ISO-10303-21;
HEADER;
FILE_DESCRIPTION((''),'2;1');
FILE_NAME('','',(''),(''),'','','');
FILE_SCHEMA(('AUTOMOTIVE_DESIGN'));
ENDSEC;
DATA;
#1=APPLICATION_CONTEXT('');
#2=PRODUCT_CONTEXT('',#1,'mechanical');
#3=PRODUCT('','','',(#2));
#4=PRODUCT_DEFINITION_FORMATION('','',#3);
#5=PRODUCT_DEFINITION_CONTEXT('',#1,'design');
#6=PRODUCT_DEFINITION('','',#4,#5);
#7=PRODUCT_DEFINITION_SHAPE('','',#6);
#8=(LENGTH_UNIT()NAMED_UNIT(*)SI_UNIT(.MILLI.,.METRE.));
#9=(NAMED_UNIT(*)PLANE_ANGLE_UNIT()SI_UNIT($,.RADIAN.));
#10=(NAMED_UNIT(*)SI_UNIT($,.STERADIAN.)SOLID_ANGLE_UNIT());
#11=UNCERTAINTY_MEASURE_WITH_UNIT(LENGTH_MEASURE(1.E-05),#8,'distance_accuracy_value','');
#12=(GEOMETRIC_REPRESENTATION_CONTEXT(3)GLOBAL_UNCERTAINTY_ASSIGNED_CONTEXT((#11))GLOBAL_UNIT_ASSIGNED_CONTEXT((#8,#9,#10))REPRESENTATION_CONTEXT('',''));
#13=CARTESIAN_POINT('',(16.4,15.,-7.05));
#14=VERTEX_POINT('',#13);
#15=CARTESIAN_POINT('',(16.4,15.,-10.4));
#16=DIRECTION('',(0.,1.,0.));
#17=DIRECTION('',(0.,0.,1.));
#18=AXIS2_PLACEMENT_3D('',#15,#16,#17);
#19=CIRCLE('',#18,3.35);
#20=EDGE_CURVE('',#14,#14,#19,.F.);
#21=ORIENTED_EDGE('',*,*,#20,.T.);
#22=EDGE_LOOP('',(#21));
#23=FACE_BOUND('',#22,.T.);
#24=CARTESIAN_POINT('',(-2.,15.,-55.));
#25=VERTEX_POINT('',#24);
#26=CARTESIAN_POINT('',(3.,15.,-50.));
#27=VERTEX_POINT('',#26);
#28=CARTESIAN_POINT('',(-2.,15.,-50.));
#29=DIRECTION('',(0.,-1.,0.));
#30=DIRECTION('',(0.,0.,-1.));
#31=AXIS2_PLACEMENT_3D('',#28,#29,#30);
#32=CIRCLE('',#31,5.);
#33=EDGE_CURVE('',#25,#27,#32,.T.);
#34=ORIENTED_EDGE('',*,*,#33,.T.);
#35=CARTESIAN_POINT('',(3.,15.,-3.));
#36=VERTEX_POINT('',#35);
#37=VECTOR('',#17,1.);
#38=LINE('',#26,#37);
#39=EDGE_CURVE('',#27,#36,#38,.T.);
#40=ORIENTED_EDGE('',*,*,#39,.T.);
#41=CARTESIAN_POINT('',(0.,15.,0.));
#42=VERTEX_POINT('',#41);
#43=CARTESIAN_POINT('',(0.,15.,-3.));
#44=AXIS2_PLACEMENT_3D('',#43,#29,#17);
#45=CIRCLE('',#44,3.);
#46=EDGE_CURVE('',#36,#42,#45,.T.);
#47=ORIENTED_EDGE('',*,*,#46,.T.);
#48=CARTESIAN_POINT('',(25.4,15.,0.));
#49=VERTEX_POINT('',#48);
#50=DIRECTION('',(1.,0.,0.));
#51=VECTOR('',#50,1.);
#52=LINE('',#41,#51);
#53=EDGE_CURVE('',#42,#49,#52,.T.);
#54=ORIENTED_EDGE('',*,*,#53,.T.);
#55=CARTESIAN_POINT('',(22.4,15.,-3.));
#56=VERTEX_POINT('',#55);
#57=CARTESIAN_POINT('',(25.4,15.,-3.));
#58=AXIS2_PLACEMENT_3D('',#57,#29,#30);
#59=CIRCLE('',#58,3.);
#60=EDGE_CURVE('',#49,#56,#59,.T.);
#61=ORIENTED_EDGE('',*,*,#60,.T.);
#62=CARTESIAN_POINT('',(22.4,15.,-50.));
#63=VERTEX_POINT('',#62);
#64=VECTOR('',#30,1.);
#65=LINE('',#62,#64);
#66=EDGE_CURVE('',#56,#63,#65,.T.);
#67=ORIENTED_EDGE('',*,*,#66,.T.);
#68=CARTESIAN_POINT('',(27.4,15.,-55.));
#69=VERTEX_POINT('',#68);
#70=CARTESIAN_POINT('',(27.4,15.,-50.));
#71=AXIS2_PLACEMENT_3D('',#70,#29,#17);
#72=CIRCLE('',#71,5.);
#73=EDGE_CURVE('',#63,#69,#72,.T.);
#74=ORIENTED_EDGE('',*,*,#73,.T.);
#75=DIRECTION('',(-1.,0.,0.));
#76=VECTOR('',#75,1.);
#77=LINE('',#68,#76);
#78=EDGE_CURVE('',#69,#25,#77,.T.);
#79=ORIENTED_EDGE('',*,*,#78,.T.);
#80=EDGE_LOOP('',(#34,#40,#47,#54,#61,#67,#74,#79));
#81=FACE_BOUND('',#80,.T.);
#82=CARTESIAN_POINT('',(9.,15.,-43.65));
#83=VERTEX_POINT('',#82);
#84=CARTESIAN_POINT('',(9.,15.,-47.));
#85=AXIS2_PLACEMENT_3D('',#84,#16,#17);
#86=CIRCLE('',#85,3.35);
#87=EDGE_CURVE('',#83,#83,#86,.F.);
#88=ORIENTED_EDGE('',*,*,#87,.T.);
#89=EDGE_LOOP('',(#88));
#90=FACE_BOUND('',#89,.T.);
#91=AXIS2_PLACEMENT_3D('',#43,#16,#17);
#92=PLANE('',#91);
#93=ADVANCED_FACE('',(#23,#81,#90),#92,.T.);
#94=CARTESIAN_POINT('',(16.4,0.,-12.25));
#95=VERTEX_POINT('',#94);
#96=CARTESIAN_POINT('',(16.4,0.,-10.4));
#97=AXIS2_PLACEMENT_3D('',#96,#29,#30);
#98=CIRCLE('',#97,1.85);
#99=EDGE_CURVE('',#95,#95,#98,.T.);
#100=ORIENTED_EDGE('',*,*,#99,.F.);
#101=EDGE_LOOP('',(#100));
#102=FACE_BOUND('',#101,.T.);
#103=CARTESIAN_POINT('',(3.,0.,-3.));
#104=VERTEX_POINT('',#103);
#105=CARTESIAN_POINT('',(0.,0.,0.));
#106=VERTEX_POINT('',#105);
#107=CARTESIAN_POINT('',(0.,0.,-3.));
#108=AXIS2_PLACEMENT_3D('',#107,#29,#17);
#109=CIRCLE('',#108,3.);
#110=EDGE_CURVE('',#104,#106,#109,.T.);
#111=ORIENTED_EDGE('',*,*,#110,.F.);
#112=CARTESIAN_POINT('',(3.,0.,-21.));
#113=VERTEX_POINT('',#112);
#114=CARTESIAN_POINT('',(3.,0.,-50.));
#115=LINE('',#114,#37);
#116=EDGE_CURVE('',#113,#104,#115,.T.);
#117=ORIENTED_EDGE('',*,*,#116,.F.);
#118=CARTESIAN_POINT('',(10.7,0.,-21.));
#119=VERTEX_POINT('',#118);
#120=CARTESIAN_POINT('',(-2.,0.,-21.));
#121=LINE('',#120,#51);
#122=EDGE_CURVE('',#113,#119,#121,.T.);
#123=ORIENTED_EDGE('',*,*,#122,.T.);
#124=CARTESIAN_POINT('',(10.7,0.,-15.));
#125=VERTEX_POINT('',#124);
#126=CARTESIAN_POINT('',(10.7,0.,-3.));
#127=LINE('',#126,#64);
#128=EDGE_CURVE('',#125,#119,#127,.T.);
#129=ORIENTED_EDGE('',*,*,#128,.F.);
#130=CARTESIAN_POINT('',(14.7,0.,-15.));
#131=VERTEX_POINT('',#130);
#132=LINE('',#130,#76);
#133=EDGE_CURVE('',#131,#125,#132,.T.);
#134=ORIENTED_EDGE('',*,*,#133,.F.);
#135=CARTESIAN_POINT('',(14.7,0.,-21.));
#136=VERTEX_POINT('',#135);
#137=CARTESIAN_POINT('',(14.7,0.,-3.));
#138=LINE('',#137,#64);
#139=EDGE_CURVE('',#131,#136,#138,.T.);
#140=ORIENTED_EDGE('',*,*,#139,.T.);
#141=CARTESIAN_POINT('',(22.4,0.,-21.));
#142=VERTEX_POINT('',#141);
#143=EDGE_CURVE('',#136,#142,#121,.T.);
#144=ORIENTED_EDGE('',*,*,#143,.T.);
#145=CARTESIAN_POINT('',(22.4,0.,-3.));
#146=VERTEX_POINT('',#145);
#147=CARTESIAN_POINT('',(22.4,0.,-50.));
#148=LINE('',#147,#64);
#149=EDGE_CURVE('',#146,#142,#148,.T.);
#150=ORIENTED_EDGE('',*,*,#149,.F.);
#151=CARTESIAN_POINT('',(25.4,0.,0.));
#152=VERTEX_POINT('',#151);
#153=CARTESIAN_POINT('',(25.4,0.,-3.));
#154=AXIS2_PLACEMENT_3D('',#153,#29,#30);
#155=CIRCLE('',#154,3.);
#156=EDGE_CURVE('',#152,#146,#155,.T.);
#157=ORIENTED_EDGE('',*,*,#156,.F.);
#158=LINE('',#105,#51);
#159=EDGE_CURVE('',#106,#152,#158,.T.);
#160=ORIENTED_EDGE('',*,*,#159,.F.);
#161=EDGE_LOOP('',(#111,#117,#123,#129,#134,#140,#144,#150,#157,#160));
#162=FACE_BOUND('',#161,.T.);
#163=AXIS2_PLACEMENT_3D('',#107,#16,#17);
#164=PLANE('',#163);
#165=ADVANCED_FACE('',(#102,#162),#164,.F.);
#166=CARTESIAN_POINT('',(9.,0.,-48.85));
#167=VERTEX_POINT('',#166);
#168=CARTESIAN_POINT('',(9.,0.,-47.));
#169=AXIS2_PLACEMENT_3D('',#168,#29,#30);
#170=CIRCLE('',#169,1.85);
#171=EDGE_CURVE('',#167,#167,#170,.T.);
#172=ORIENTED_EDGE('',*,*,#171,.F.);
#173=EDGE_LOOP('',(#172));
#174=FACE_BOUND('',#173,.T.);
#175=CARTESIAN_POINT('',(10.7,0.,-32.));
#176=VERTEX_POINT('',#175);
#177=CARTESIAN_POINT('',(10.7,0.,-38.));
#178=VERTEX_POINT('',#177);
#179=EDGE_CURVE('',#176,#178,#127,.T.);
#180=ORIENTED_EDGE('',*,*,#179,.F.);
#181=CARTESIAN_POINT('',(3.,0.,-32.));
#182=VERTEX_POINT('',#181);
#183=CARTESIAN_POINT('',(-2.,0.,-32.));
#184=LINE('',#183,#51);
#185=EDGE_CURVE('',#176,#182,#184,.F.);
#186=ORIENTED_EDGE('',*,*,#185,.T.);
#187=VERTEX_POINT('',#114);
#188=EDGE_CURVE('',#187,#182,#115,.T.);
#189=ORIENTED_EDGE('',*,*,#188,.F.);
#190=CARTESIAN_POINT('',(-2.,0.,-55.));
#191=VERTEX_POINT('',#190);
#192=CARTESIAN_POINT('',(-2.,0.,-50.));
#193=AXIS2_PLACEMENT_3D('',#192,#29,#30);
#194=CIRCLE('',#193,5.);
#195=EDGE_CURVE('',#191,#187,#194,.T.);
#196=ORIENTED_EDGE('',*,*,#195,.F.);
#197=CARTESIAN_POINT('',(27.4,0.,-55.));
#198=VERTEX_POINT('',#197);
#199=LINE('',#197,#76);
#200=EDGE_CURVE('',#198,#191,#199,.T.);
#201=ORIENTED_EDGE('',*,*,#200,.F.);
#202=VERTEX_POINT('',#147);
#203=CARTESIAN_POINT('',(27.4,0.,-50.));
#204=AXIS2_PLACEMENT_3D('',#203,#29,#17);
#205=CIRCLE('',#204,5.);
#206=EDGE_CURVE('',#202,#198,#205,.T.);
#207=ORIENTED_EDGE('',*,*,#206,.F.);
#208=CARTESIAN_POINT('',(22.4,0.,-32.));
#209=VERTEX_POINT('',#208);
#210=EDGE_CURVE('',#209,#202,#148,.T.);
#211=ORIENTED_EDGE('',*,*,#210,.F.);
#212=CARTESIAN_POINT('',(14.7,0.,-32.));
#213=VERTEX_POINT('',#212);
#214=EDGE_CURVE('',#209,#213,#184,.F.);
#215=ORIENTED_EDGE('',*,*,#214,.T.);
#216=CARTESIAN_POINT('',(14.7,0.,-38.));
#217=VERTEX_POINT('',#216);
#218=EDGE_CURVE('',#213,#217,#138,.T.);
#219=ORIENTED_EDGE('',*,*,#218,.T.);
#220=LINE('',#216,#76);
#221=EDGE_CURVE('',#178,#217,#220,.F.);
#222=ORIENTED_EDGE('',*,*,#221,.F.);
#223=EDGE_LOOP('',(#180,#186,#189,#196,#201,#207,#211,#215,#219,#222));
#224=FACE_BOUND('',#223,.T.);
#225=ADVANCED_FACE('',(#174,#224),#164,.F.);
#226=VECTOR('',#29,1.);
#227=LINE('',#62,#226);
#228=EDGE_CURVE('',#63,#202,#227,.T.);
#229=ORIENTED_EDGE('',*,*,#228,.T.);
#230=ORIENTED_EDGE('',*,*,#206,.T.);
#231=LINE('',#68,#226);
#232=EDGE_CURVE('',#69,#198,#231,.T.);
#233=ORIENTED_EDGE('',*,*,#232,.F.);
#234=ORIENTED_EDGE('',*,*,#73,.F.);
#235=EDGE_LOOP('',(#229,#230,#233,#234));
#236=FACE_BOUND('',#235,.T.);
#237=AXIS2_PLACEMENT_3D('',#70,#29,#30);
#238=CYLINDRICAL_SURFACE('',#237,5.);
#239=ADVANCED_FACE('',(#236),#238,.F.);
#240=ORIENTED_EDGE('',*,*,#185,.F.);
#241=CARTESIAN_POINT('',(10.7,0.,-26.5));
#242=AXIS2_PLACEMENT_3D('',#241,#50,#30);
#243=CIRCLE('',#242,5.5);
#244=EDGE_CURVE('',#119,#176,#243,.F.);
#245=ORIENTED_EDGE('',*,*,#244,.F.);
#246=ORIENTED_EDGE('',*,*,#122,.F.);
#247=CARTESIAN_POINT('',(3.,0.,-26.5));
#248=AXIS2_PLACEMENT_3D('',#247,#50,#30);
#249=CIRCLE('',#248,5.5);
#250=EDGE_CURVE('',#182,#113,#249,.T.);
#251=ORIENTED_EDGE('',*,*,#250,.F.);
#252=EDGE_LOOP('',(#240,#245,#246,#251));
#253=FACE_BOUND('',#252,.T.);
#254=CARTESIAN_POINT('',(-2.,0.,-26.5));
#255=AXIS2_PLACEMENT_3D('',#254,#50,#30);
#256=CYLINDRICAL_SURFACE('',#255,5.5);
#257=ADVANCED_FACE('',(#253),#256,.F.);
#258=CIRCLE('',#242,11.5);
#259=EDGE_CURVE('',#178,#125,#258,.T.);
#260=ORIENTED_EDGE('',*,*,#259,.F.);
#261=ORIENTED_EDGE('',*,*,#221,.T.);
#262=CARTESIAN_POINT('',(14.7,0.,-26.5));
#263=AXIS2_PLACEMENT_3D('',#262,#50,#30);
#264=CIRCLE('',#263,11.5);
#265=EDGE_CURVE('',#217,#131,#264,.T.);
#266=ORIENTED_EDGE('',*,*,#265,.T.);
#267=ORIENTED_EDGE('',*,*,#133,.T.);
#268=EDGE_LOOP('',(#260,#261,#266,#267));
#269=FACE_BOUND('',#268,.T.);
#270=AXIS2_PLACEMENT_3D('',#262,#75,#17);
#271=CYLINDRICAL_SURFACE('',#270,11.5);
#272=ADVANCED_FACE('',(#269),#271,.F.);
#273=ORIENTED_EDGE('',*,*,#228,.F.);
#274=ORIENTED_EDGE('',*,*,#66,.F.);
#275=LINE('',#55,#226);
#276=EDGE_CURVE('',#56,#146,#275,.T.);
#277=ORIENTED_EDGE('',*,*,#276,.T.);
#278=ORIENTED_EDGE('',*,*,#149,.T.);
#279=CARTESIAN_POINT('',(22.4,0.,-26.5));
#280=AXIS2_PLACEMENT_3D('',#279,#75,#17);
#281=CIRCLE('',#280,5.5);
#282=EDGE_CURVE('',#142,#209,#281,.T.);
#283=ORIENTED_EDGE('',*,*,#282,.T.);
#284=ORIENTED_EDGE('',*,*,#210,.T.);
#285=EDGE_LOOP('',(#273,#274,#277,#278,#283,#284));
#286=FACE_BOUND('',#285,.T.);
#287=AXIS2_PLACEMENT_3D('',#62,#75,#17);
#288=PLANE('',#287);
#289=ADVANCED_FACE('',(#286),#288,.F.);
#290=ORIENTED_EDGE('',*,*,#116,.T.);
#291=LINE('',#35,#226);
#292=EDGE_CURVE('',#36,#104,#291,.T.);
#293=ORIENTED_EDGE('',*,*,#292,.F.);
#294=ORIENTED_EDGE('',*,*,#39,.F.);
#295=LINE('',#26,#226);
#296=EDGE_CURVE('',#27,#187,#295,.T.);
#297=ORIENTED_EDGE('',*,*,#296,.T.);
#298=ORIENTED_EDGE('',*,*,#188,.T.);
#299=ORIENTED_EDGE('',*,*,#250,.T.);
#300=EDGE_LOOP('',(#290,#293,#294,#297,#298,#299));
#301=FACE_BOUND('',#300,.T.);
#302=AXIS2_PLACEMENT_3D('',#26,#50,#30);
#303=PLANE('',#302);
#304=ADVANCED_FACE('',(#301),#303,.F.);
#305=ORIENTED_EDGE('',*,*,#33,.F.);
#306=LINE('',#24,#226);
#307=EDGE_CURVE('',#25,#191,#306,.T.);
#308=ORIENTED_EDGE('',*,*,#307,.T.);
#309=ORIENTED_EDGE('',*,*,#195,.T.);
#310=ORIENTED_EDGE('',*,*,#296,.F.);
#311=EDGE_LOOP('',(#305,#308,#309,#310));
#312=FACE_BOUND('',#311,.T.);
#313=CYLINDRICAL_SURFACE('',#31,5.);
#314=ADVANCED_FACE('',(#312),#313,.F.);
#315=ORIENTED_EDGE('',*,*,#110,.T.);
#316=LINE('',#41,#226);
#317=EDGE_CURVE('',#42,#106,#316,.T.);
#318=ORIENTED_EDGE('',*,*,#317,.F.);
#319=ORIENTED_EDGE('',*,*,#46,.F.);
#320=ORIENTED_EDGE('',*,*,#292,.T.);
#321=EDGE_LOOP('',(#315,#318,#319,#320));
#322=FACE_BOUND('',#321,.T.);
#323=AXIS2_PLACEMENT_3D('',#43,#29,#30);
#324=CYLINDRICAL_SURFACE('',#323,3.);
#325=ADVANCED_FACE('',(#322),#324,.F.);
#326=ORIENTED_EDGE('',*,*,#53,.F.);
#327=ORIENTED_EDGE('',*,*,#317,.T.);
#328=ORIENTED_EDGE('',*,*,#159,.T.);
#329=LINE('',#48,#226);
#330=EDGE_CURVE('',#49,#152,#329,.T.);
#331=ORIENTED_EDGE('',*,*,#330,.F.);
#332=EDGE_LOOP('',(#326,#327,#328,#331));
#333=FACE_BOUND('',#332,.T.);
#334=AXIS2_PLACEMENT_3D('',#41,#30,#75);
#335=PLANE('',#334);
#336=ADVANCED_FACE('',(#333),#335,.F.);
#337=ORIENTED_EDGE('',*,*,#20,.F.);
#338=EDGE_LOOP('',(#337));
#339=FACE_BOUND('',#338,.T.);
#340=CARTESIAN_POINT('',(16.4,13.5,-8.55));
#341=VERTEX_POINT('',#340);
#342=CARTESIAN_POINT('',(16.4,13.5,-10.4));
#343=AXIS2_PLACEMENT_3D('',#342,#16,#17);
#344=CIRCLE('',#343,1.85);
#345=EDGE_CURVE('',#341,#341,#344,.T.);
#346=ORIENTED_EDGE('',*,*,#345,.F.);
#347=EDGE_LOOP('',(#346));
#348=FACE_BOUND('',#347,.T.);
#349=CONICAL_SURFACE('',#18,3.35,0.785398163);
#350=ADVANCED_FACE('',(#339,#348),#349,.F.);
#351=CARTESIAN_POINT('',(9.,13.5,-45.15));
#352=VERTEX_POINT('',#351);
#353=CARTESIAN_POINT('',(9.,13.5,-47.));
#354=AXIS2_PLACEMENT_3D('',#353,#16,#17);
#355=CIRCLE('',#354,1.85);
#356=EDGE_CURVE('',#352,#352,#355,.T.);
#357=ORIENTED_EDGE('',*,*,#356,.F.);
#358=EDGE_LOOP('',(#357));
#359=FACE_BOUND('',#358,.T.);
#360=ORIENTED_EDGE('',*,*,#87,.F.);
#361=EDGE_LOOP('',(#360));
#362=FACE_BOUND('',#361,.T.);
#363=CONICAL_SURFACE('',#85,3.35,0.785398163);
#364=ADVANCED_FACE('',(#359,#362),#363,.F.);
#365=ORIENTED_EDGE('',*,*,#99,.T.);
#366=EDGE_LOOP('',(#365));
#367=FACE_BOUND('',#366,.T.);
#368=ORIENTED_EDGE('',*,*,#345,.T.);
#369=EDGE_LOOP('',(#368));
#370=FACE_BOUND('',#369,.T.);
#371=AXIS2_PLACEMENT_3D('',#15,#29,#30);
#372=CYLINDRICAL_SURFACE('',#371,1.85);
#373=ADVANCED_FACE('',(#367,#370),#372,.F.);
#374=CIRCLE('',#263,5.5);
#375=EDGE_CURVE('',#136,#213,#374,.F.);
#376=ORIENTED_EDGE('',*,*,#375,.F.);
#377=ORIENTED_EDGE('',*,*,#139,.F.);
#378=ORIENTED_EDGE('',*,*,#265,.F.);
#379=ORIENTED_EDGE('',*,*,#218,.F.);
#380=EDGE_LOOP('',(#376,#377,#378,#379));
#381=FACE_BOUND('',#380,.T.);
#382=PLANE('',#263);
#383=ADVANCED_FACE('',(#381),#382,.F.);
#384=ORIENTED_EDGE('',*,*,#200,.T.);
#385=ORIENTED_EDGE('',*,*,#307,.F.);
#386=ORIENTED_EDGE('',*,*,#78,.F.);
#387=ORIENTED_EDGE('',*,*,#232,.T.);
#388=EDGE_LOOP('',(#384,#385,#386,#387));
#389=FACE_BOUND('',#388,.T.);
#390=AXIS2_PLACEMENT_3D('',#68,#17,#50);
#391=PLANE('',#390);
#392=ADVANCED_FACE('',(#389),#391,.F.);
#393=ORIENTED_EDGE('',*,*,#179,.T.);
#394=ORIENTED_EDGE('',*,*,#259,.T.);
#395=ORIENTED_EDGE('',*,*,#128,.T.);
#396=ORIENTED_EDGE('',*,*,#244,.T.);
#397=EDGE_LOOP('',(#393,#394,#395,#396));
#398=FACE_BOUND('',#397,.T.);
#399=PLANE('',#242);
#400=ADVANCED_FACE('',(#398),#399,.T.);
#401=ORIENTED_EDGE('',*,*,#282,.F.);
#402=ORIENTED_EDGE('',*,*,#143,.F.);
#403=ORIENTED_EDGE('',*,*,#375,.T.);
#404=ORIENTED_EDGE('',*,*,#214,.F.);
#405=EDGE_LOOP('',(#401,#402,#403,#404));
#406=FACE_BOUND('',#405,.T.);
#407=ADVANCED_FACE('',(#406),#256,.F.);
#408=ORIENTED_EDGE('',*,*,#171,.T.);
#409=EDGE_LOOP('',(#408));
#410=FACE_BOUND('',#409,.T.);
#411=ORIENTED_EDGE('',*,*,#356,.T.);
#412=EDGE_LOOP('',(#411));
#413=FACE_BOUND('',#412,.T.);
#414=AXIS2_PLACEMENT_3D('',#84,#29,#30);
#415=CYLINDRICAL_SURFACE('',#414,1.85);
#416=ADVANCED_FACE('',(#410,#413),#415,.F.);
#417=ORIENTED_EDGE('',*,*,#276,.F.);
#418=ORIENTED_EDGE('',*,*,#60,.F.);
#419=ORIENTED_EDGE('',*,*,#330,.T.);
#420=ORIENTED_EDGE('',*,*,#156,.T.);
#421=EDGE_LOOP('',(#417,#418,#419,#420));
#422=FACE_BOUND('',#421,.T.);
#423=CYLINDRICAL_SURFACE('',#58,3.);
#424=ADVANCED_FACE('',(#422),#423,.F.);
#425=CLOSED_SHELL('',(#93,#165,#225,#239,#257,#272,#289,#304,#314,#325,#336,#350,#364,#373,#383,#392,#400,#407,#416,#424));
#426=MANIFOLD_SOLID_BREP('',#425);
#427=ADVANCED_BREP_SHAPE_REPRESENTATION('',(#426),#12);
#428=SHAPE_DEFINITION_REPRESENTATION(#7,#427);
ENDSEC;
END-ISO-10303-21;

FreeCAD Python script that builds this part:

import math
import FreeCAD as App
import Part
import Sketcher
Q = App.Units.Quantity


def edges_at(feature, points):
    """Names of the edges that pass closest to the given points."""
    edges = feature.Shape.Edges
    near = lambda p: min(range(len(edges)), key=lambda i: edges[i].distToShape(Part.Vertex(*p))[0])
    return sorted({f"Edge{near(p) + 1}" for p in points})

doc = App.newDocument("Part")
body = doc.addObject("PartDesign::Body", "Body")

sketch1 = body.newObject("Sketcher::SketchObject", "Sketch")
sketch1.AttachmentSupport = (doc.getObject("XZ_Plane"), [""])
sketch1.MapMode = "FlatFace"
sketch1.addGeometry([
    Part.LineSegment(App.Vector(3, -50, 0), App.Vector(3, -3, 0)),
    Part.ArcOfCircle(Part.Circle(App.Vector(0, -3, 0), App.Vector(0, 0, 1), 3), math.radians(0), math.radians(90)),
    Part.LineSegment(App.Vector(0, 0, 0), App.Vector(25.4, 0, 0)),
    Part.ArcOfCircle(Part.Circle(App.Vector(25.4, -3, 0), App.Vector(0, 0, 1), 3), math.radians(90), math.radians(180)),
    Part.LineSegment(App.Vector(22.4, -3, 0), App.Vector(22.4, -50, 0)),
    Part.ArcOfCircle(Part.Circle(App.Vector(27.4, -50, 0), App.Vector(0, 0, 1), 5), math.radians(180), math.radians(270)),
    Part.LineSegment(App.Vector(27.4, -55, 0), App.Vector(-2, -55, 0)),
    Part.ArcOfCircle(Part.Circle(App.Vector(-2, -50, 0), App.Vector(0, 0, 1), 5), math.radians(-90), math.radians(0)),
], False)
sketch1.addConstraint([
    Sketcher.Constraint("Tangent", 0, 2, 1, 1),
    Sketcher.Constraint("Tangent", 1, 2, 2, 1),
    Sketcher.Constraint("Tangent", 2, 2, 3, 1),
    Sketcher.Constraint("Tangent", 3, 2, 4, 1),
    Sketcher.Constraint("Tangent", 4, 2, 5, 1),
    Sketcher.Constraint("Tangent", 5, 2, 6, 1),
    Sketcher.Constraint("Tangent", 6, 2, 7, 1),
    Sketcher.Constraint("Tangent", 7, 2, 0, 1),
    Sketcher.Constraint("Vertical", 0),
    Sketcher.Constraint("Horizontal", 2),
    Sketcher.Constraint("Vertical", 4),
    Sketcher.Constraint("Horizontal", 6),
    Sketcher.Constraint("Coincident", 1, 2, -1, 1),
    Sketcher.Constraint("Equal", 1, 3),
    Sketcher.Constraint("Equal", 5, 7),
    Sketcher.Constraint("Radius", 1, Q("3 mm")),
    Sketcher.Constraint("Radius", 5, Q("5 mm")),
    Sketcher.Constraint("DistanceY", 0, 1, 0, 2, Q("47 mm")),
    Sketcher.Constraint("DistanceX", 2, 1, 2, 2, Q("25.4 mm")),
])
pad1 = body.newObject("PartDesign::Pad", "Pad")
pad1.Profile = sketch1
pad1.Length = 15
pad1.Reversed = True

sketch2 = body.newObject("Sketcher::SketchObject", "Sketch001")
sketch2.AttachmentSupport = (doc.getObject("YZ_Plane"), [""])
sketch2.MapMode = "FlatFace"
sketch2.AttachmentOffset = App.Placement(App.Vector(0, 0, 12.7), App.Rotation())
sketch2.addGeometry(Part.Circle(App.Vector(0, -26.5, 0), App.Vector(0, 0, 1), 5.5), False)
sketch2.addConstraint([
    Sketcher.Constraint("PointOnObject", 0, 3, -2),
    Sketcher.Constraint("Diameter", 0, Q("11 mm")),
    Sketcher.Constraint("DistanceY", 0, 3, -1, 1, Q("26.5 mm")),
])
pocket1 = body.newObject("PartDesign::Pocket", "Pocket")
pocket1.Profile = sketch2
pocket1.Type = "ThroughAll"
pocket1.Midplane = True

sketch3 = body.newObject("Sketcher::SketchObject", "Sketch002")
sketch3.AttachmentSupport = (doc.getObject("YZ_Plane"), [""])
sketch3.MapMode = "FlatFace"
sketch3.AttachmentOffset = App.Placement(App.Vector(0, 0, 12.7), App.Rotation())
sketch3.addGeometry(Part.Circle(App.Vector(0, -26.5, 0), App.Vector(0, 0, 1), 11.5), False)
sketch3.addConstraint([
    Sketcher.Constraint("PointOnObject", 0, 3, -2),
    Sketcher.Constraint("Diameter", 0, Q("23 mm")),
    Sketcher.Constraint("DistanceY", 0, 3, -1, 1, Q("26.5 mm")),
])
pocket2 = body.newObject("PartDesign::Pocket", "Pocket001")
pocket2.Profile = sketch3
pocket2.Type = "TwoLengths"
pocket2.Length = 2
pocket2.Length2 = 2
pocket2.Reversed = True

sketch4 = body.newObject("Sketcher::SketchObject", "Sketch003")
sketch4.AttachmentSupport = (doc.getObject("XZ_Plane"), [""])
sketch4.MapMode = "FlatFace"
sketch4.addGeometry([
    Part.Circle(App.Vector(16.4, -10.4, 0), App.Vector(0, 0, 1), 1.85),
    Part.Circle(App.Vector(9, -47, 0), App.Vector(0, 0, 1), 1.85),
], False)
sketch4.addConstraint([
    Sketcher.Constraint("Equal", 0, 1),
    Sketcher.Constraint("Diameter", 0, Q("3.7 mm")),
    Sketcher.Constraint("DistanceX", -1, 1, 1, 3, Q("9 mm")),
    Sketcher.Constraint("DistanceY", 1, 3, -1, 1, Q("47 mm")),
    Sketcher.Constraint("DistanceX", -1, 1, 0, 3, Q("16.4 mm")),
    Sketcher.Constraint("DistanceY", 0, 3, -1, 1, Q("10.4 mm")),
])
pocket3 = body.newObject("PartDesign::Pocket", "Pocket002")
pocket3.Profile = sketch4
pocket3.Type = "ThroughAll"
doc.recompute()

chamfer = body.newObject("PartDesign::Chamfer", "Chamfer")
chamfer.Base = (pocket3, edges_at(pocket3, [(16.4, 15, -8.55), (9, 15, -45.15)]))
chamfer.Size = 1.5

doc.recompute()
